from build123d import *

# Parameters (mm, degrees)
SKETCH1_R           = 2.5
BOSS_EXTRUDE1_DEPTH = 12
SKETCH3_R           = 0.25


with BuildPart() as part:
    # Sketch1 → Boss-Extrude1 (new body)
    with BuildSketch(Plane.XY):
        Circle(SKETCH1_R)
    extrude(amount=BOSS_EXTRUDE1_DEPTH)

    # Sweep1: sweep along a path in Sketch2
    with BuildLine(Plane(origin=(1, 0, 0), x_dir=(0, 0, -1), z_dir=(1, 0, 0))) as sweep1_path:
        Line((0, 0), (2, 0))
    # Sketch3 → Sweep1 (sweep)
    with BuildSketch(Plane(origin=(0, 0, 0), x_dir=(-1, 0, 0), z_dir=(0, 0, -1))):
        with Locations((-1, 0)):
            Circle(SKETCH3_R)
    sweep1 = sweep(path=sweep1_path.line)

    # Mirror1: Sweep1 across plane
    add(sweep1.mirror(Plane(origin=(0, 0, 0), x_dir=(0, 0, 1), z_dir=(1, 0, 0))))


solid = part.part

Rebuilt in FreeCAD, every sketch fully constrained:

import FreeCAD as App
import Part
import Sketcher

V = App.Vector

doc = App.newDocument("Part")
params = doc.addObject("Spreadsheet::Sheet", "Params")
for row, (alias, value) in enumerate([
    ("sketch1_diameter", "5 mm"),
    ("pad1_length", "12 mm"),
    ("sketch2_diameter", "0.5 mm"),
    ("sketch3_height", "2 mm"),
], start=1):
    params.set(f"A{row}", alias)
    params.set(f"B{row}", "=" + value)
    params.setAlias(f"B{row}", alias)

body = doc.addObject("PartDesign::Body", "Body")

sketch1 = body.newObject("Sketcher::SketchObject", "Sketch")
sketch1.AttachmentSupport = (doc.getObject("XY_Plane"), [""])
sketch1.MapMode = "FlatFace"
sketch1.addGeometry(Part.Circle(V(0, 0, 0), V(0, 0, 1), 2.5), False)
sketch1.addConstraint(Sketcher.Constraint("Coincident", 0, 3, -1, 1))
sketch1.addConstraint(Sketcher.Constraint("Diameter", 0, 5.0))
sketch1.setExpression("Constraints[1]", "Params.sketch1_diameter")
pad1 = body.newObject("PartDesign::Pad", "Pad")
pad1.Profile = sketch1
pad1.setExpression("Length", "Params.pad1_length")

sketch2 = body.newObject("Sketcher::SketchObject", "Sketch001")
sketch2.AttachmentSupport = (doc.getObject("XY_Plane"), [""])
sketch2.MapMode = "FlatFace"
sketch2.addGeometry(Part.Circle(V(1, 0, 0), V(0, 0, 1), 0.25), False)
sketch2.addConstraint(Sketcher.Constraint("PointOnObject", 0, 3, -1))
sketch2.addConstraint(Sketcher.Constraint("Diameter", 0, 0.5))
sketch2.addConstraint(Sketcher.Constraint("DistanceX", -1, 1, 0, 3, 1.0))
sketch2.setExpression("Constraints[1]", "Params.sketch2_diameter")

sketch3 = body.newObject("Sketcher::SketchObject", "Sketch002")
sketch3.AttachmentSupport = (doc.getObject("XZ_Plane"), [""])
sketch3.MapMode = "FlatFace"
sketch3.addGeometry(Part.LineSegment(V(1, 0, 0), V(1, -2, 0)), False)
sketch3.addConstraint(Sketcher.Constraint("Vertical", 0))
sketch3.addConstraint(Sketcher.Constraint("PointOnObject", 0, 1, -1))
sketch3.addConstraint(Sketcher.Constraint("DistanceY", 0, 2, 0, 1, 2.0))
sketch3.addConstraint(Sketcher.Constraint("DistanceX", -1, 1, 0, 1, 1.0))
sketch3.setExpression("Constraints[2]", "Params.sketch3_height")
doc.recompute()

additivepipe = body.newObject("PartDesign::AdditivePipe", "AdditivePipe")
additivepipe.Profile = sketch2
additivepipe.Spine = (sketch3, ["Edge1"])
doc.recompute()

mirrored = body.newObject("PartDesign::Mirrored", "Mirrored")
mirrored.Originals = [additivepipe]
mirrored.MirrorPlane = (doc.getObject("YZ_Plane"), [""])
body.Tip = mirrored

doc.recompute()
